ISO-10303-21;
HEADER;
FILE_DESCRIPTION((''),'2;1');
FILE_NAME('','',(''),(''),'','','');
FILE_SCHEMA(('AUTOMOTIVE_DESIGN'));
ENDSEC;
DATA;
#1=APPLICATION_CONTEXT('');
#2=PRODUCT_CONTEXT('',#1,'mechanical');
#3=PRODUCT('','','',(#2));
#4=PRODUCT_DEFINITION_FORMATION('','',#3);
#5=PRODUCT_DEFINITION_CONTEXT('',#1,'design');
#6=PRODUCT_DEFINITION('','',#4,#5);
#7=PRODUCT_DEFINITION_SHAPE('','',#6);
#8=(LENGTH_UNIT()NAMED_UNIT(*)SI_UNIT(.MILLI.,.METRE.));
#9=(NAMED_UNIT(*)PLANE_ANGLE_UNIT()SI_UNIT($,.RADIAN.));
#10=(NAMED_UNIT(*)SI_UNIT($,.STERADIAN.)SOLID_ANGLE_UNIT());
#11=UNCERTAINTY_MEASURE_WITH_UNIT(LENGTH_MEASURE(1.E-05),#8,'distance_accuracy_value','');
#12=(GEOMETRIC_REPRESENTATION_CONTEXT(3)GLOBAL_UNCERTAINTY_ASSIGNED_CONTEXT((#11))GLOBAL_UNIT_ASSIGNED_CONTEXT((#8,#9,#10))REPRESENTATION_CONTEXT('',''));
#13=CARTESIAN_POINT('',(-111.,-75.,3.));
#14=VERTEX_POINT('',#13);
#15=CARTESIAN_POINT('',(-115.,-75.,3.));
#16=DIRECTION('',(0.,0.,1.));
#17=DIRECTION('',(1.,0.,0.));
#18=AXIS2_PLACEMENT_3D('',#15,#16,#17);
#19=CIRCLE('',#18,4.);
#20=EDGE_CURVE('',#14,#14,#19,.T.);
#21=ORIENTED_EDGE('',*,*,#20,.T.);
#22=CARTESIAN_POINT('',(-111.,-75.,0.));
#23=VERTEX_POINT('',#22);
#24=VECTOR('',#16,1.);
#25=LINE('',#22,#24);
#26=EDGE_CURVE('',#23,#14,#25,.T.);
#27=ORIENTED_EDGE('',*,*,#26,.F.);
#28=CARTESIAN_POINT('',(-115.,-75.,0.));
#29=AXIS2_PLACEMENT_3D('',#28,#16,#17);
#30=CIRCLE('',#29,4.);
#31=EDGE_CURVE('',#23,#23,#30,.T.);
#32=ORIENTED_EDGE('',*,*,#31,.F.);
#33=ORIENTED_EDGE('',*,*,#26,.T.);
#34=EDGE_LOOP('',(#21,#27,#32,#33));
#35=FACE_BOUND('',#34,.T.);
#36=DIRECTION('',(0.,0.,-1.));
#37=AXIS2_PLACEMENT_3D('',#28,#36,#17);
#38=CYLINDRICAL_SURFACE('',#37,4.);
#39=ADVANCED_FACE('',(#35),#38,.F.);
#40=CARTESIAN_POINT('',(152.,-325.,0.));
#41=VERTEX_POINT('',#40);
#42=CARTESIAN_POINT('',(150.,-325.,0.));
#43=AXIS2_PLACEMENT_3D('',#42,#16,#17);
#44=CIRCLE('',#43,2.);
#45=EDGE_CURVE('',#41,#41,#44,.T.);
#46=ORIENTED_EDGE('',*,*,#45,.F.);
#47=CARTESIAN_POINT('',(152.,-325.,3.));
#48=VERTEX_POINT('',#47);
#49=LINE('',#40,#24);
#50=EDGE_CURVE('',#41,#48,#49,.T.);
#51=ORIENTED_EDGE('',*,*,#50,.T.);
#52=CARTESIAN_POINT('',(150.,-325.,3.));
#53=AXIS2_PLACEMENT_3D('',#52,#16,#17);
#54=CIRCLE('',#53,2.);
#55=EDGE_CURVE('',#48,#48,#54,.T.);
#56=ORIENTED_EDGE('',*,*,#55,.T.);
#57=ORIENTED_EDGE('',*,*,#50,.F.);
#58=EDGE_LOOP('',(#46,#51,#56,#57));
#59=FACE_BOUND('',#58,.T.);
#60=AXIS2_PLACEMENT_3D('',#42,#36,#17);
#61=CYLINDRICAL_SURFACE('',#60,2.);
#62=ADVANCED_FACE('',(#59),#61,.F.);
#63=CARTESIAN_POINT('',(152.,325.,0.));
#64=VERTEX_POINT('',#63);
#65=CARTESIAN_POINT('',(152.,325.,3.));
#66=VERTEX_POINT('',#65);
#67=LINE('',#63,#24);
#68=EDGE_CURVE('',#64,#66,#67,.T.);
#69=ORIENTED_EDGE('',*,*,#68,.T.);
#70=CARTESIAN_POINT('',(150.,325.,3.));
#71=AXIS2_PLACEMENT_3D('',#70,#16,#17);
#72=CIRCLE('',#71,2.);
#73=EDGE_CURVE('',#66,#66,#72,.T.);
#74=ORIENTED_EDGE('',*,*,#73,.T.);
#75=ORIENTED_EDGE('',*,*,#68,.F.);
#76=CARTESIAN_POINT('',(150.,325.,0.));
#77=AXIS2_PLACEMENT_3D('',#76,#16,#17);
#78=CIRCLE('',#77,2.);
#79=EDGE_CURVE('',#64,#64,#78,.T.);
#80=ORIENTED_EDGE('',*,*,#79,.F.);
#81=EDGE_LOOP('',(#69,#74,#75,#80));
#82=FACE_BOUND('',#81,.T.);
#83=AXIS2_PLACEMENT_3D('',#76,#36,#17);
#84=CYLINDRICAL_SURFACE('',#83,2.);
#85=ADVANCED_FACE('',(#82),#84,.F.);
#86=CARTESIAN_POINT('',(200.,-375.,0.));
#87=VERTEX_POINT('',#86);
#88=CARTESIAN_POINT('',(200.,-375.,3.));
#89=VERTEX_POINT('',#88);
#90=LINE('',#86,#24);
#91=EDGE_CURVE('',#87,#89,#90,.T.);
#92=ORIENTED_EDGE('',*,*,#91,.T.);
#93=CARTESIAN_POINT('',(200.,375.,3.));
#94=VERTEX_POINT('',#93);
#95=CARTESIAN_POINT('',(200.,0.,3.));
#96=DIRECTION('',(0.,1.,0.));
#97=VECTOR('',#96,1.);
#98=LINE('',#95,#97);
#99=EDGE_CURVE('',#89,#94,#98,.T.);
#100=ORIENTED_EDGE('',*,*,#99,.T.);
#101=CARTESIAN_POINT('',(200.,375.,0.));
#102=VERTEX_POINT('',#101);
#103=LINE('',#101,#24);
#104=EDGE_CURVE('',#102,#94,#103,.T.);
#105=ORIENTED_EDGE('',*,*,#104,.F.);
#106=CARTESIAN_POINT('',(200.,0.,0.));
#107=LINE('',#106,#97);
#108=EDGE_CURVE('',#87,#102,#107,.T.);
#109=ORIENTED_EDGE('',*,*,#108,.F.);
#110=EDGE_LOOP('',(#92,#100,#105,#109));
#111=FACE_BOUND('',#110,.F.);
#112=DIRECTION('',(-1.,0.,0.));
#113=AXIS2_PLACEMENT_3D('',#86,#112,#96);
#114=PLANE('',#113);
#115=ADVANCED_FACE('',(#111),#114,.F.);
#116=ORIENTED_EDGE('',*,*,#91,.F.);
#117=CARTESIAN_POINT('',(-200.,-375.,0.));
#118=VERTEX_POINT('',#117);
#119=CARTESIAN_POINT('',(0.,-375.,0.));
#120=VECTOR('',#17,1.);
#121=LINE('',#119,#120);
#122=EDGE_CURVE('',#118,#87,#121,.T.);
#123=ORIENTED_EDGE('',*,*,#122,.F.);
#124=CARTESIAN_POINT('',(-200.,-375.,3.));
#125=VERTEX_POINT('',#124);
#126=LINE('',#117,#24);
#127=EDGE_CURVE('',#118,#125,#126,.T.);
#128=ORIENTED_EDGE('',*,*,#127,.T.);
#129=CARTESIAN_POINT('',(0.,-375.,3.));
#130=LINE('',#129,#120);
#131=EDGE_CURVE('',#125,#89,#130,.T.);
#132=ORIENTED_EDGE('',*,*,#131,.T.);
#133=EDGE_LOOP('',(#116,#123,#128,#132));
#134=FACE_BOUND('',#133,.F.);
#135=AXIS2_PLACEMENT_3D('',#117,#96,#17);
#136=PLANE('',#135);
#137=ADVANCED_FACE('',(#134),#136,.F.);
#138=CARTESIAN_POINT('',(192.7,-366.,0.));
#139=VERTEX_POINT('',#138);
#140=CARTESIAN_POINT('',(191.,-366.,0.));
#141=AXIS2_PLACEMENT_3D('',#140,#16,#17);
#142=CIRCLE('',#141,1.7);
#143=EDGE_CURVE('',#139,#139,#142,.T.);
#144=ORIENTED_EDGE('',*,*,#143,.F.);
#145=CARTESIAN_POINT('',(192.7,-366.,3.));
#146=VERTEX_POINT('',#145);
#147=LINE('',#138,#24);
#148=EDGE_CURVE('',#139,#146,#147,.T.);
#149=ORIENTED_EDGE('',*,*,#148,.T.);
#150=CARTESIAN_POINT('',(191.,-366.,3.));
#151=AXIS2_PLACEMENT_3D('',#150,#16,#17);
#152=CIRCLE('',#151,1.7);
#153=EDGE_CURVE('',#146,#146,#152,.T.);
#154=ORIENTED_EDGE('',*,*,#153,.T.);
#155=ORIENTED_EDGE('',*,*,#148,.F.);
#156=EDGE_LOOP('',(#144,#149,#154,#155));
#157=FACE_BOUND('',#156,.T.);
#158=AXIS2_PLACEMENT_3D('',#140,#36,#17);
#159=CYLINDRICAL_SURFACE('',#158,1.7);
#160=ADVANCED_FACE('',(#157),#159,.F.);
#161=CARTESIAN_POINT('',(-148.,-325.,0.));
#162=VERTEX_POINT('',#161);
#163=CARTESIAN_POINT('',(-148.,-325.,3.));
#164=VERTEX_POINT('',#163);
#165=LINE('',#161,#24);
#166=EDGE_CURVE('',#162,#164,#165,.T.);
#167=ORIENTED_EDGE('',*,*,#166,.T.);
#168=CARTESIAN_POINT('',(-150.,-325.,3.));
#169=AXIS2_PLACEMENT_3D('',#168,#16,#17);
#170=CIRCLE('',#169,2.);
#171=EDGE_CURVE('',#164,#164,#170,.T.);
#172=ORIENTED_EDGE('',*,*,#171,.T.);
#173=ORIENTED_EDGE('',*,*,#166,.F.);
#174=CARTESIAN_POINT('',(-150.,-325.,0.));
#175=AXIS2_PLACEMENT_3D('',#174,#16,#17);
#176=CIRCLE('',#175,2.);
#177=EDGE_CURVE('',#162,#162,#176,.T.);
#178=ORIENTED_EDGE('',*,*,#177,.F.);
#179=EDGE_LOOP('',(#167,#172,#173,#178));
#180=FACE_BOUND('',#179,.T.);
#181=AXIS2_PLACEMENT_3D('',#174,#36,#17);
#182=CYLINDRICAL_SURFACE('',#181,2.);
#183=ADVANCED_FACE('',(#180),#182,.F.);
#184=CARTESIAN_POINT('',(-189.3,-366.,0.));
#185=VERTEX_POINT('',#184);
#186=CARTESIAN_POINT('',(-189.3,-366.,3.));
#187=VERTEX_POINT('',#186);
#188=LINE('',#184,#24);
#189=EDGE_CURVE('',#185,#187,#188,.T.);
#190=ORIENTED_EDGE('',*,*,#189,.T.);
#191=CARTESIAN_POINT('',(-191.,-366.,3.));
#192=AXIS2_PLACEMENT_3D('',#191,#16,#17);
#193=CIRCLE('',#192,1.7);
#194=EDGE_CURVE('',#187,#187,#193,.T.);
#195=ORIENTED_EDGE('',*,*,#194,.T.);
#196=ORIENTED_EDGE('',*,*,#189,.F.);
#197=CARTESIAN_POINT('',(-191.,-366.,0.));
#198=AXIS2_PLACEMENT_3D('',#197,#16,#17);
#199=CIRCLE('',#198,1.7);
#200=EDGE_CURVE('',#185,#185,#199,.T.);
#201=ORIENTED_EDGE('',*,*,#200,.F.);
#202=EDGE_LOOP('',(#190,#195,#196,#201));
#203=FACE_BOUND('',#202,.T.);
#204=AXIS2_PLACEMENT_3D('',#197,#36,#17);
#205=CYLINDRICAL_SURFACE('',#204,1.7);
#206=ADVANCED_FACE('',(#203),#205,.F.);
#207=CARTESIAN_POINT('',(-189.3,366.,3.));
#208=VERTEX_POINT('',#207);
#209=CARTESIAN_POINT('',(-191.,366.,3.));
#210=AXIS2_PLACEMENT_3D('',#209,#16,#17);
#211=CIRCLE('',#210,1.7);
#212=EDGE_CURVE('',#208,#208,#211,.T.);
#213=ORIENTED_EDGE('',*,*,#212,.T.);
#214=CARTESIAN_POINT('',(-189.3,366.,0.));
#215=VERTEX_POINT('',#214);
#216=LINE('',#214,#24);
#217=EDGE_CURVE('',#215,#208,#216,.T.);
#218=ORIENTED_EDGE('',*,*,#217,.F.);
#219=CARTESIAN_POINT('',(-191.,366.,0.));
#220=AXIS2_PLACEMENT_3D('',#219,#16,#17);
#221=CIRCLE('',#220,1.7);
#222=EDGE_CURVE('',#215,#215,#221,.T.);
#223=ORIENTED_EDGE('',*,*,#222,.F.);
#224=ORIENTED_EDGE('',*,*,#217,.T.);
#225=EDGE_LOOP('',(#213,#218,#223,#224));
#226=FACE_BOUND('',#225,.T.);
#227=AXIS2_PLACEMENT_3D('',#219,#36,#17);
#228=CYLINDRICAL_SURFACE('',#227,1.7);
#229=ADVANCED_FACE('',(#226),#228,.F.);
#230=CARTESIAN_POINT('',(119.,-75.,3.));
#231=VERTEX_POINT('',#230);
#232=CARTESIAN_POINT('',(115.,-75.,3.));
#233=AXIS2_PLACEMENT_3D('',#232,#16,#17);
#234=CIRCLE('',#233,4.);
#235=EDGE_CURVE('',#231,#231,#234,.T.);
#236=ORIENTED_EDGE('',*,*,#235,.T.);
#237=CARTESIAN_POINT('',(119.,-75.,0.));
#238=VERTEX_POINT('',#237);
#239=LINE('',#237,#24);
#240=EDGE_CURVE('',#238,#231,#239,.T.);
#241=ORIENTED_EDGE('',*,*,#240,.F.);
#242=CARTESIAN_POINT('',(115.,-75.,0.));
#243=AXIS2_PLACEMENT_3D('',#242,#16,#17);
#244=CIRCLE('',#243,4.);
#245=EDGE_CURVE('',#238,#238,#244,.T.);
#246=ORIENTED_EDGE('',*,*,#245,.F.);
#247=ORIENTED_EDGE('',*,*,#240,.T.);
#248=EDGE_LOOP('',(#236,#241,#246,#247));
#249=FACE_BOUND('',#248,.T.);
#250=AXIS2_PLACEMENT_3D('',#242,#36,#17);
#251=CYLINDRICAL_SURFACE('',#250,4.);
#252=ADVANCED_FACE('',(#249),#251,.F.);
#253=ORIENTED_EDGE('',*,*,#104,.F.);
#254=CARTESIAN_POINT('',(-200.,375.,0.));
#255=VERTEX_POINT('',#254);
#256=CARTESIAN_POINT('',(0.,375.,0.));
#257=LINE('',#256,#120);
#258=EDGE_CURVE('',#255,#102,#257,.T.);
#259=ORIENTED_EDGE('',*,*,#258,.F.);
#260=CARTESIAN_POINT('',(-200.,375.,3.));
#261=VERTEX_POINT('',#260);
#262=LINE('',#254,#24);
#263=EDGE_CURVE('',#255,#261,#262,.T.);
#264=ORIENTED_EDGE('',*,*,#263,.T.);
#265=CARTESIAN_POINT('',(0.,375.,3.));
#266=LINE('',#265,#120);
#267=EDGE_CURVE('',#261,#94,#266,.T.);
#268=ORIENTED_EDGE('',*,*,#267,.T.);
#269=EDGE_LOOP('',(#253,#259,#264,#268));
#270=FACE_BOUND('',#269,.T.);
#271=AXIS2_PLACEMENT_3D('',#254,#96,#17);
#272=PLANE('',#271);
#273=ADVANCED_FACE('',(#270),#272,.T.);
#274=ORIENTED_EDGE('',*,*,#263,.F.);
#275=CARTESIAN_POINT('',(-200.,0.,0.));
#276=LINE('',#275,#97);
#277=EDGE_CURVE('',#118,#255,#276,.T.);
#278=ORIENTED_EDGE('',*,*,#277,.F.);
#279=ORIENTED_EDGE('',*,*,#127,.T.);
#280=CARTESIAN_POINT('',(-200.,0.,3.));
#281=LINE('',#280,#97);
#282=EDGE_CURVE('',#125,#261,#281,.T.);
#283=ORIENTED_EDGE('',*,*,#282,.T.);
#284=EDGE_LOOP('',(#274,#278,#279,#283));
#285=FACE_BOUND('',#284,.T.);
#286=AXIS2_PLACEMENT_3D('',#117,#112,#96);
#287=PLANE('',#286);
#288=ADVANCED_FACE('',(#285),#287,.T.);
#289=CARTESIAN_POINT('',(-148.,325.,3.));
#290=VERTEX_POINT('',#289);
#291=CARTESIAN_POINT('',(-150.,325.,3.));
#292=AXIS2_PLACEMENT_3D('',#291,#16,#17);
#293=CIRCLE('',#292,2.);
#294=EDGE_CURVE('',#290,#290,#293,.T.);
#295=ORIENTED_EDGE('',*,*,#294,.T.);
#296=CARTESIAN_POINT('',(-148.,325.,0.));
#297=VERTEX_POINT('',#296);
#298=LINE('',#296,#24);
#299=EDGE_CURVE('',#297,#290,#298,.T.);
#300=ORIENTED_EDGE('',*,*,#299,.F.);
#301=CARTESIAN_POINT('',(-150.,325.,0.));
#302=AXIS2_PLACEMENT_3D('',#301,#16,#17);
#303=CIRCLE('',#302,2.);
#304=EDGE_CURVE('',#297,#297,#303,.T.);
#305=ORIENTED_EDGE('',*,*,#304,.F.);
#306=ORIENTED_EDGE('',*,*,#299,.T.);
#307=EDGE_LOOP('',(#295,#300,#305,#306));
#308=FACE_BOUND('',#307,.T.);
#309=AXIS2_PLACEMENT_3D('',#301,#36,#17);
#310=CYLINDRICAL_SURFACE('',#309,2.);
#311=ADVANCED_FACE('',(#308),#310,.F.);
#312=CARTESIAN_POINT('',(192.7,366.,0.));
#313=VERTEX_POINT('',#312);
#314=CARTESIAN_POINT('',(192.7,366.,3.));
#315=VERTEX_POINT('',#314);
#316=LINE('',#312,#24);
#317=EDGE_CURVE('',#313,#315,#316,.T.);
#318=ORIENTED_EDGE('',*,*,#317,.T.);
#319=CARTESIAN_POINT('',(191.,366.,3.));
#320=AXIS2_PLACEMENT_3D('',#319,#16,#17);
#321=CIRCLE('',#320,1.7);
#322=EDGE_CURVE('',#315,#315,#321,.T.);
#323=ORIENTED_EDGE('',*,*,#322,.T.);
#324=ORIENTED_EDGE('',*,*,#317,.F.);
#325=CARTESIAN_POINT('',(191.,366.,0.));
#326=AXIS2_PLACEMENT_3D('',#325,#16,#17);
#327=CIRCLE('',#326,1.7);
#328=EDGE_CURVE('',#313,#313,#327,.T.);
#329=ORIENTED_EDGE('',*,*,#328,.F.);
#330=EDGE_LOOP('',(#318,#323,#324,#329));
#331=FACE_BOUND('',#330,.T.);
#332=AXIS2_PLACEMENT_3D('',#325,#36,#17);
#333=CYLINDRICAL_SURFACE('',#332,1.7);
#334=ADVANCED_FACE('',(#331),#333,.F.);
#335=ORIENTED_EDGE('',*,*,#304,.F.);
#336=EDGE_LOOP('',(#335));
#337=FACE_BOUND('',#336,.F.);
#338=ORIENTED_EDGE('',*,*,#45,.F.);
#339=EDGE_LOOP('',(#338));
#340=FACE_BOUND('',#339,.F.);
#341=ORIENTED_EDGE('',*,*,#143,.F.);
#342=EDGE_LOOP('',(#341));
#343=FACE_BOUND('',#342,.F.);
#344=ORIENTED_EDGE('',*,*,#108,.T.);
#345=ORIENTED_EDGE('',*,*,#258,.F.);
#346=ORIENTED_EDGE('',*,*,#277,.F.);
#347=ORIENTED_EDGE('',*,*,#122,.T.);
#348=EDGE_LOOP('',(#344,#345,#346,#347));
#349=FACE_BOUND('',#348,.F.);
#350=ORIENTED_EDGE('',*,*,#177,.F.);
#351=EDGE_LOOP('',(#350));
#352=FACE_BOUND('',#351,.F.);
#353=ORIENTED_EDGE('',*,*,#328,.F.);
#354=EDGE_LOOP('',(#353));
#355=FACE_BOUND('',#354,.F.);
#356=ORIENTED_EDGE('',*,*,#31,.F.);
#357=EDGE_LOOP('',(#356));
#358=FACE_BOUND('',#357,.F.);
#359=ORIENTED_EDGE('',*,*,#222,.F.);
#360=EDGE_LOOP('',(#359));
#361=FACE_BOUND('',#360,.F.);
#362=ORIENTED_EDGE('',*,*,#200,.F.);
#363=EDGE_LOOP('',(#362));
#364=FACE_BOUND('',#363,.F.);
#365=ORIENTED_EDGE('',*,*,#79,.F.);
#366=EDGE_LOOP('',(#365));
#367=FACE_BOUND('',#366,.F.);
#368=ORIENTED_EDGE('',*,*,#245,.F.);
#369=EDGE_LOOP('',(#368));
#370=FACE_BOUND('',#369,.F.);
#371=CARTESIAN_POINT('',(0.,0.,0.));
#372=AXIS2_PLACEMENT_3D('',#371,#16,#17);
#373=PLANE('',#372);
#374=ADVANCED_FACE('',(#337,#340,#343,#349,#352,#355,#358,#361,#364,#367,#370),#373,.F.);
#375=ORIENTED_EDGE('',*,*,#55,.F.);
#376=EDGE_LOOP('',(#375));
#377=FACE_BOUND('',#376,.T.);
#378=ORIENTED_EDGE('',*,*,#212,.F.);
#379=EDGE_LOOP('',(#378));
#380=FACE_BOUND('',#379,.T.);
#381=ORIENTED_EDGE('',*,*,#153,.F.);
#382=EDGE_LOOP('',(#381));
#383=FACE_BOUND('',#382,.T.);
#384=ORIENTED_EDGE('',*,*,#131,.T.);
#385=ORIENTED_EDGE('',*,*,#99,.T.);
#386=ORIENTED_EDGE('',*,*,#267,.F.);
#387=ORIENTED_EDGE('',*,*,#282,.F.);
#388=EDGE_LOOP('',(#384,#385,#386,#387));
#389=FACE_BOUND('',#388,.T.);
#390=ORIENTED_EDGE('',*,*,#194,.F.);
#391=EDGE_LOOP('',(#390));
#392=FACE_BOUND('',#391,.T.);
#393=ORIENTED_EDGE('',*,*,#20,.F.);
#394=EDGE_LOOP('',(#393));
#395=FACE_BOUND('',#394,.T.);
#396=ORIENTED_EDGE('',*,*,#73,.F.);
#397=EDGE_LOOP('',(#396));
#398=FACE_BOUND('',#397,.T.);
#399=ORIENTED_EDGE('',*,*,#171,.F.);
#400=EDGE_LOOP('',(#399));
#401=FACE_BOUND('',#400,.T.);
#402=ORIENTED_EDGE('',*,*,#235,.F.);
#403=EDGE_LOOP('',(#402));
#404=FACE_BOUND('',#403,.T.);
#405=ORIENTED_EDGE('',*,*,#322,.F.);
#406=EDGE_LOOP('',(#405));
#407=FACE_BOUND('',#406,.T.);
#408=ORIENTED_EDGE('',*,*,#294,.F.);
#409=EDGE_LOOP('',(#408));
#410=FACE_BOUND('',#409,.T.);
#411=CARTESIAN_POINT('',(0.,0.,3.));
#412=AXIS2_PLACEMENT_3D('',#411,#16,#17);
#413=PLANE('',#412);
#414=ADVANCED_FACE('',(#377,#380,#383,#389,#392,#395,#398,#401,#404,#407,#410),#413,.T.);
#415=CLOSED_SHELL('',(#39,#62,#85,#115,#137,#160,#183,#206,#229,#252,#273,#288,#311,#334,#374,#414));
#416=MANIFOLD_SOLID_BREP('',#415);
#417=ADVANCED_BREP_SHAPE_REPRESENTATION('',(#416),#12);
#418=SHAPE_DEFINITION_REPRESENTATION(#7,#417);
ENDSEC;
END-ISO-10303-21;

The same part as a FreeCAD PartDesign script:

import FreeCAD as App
import Part
import Sketcher

V = App.Vector
Q = App.Units.Quantity


def add_polygon(sketch, points):
    """Adds a closed chain of lines whose ends are joined by coincident constraints."""
    first, n = sketch.GeometryCount, len(points)
    for a, b in zip(points, points[1:] + points[:1]):
        sketch.addGeometry(Part.LineSegment(App.Vector(*a, 0), App.Vector(*b, 0)), False)
    for i in range(n):
        sketch.addConstraint(Sketcher.Constraint("Coincident", first + i, 2, first + (i + 1) % n, 1))

doc = App.newDocument("Part")
body = doc.addObject("PartDesign::Body", "Body")

sketch1 = body.newObject("Sketcher::SketchObject", "Sketch")
sketch1.AttachmentSupport = (doc.getObject("XY_Plane"), [""])
sketch1.MapMode = "FlatFace"
add_polygon(sketch1, [(-200, 375), (-200, -375), (200, -375), (200, 375)])
sketch1.addGeometry(Part.Circle(V(-191, -366, 0), V(0, 0, 1), 1.7), False)
sketch1.addGeometry(Part.Circle(V(-150, -325, 0), V(0, 0, 1), 2), False)
sketch1.addGeometry(Part.Circle(V(-115, -75, 0), V(0, 0, 1), 4), False)
sketch1.addGeometry(Part.Circle(V(150, -325, 0), V(0, 0, 1), 2), False)
sketch1.addGeometry(Part.Circle(V(191, -366, 0), V(0, 0, 1), 1.7), False)
sketch1.addGeometry(Part.Circle(V(115, -75, 0), V(0, 0, 1), 4), False)
sketch1.addGeometry(Part.Circle(V(-191, 366, 0), V(0, 0, 1), 1.7), False)
sketch1.addGeometry(Part.Circle(V(-150, 325, 0), V(0, 0, 1), 2), False)
sketch1.addGeometry(Part.Circle(V(150, 325, 0), V(0, 0, 1), 2), False)
sketch1.addGeometry(Part.Circle(V(191, 366, 0), V(0, 0, 1), 1.7), False)
sketch1.addConstraint([
    Sketcher.Constraint("Vertical", 0),
    Sketcher.Constraint("Horizontal", 1),
    Sketcher.Constraint("Vertical", 2),
    Sketcher.Constraint("Horizontal", 3),
    Sketcher.Constraint("Equal", 5, 7),
    Sketcher.Constraint("Equal", 4, 8),
    Sketcher.Constraint("Equal", 6, 9),
    Sketcher.Constraint("Equal", 8, 10),
    Sketcher.Constraint("Equal", 7, 11),
    Sketcher.Constraint("Equal", 11, 12),
    Sketcher.Constraint("Equal", 10, 13),
    Sketcher.Constraint("Symmetric", 8, 3, 10, 3, -1, 1),
    Sketcher.Constraint("Symmetric", 7, 3, 11, 3, -1, 1),
    Sketcher.Constraint("Symmetric", 5, 3, 12, 3, -1, 1),
    Sketcher.Constraint("Symmetric", 4, 3, 13, 3, -1, 1),
    Sketcher.Constraint("Symmetric", 0, 2, 2, 2, -1, 1),
    Sketcher.Constraint("Symmetric", 5, 3, 7, 3, -2),
    Sketcher.Constraint("Symmetric", 4, 3, 8, 3, -2),
    Sketcher.Constraint("Symmetric", 6, 3, 9, 3, -2),
    Sketcher.Constraint("Diameter", 5, Q("4 mm")),
    Sketcher.Constraint("Diameter", 6, Q("8 mm")),
    Sketcher.Constraint("Diameter", 4, Q("3.4 mm")),
    Sketcher.Constraint("DistanceX", 1, 1, 1, 2, Q("400 mm")),
    Sketcher.Constraint("DistanceY", 0, 2, 0, 1, Q("750 mm")),
    Sketcher.Constraint("DistanceX", 4, 3, -1, 1, Q("191 mm")),
    Sketcher.Constraint("DistanceY", 4, 3, -1, 1, Q("366 mm")),
    Sketcher.Constraint("DistanceX", 5, 3, -1, 1, Q("150 mm")),
    Sketcher.Constraint("DistanceY", 5, 3, -1, 1, Q("325 mm")),
    Sketcher.Constraint("DistanceX", 6, 3, -1, 1, Q("115 mm")),
    Sketcher.Constraint("DistanceY", 6, 3, -1, 1, Q("75 mm")),
])
pad1 = body.newObject("PartDesign::Pad", "Pad")
pad1.Profile = sketch1
pad1.Length = 3

doc.recompute()
